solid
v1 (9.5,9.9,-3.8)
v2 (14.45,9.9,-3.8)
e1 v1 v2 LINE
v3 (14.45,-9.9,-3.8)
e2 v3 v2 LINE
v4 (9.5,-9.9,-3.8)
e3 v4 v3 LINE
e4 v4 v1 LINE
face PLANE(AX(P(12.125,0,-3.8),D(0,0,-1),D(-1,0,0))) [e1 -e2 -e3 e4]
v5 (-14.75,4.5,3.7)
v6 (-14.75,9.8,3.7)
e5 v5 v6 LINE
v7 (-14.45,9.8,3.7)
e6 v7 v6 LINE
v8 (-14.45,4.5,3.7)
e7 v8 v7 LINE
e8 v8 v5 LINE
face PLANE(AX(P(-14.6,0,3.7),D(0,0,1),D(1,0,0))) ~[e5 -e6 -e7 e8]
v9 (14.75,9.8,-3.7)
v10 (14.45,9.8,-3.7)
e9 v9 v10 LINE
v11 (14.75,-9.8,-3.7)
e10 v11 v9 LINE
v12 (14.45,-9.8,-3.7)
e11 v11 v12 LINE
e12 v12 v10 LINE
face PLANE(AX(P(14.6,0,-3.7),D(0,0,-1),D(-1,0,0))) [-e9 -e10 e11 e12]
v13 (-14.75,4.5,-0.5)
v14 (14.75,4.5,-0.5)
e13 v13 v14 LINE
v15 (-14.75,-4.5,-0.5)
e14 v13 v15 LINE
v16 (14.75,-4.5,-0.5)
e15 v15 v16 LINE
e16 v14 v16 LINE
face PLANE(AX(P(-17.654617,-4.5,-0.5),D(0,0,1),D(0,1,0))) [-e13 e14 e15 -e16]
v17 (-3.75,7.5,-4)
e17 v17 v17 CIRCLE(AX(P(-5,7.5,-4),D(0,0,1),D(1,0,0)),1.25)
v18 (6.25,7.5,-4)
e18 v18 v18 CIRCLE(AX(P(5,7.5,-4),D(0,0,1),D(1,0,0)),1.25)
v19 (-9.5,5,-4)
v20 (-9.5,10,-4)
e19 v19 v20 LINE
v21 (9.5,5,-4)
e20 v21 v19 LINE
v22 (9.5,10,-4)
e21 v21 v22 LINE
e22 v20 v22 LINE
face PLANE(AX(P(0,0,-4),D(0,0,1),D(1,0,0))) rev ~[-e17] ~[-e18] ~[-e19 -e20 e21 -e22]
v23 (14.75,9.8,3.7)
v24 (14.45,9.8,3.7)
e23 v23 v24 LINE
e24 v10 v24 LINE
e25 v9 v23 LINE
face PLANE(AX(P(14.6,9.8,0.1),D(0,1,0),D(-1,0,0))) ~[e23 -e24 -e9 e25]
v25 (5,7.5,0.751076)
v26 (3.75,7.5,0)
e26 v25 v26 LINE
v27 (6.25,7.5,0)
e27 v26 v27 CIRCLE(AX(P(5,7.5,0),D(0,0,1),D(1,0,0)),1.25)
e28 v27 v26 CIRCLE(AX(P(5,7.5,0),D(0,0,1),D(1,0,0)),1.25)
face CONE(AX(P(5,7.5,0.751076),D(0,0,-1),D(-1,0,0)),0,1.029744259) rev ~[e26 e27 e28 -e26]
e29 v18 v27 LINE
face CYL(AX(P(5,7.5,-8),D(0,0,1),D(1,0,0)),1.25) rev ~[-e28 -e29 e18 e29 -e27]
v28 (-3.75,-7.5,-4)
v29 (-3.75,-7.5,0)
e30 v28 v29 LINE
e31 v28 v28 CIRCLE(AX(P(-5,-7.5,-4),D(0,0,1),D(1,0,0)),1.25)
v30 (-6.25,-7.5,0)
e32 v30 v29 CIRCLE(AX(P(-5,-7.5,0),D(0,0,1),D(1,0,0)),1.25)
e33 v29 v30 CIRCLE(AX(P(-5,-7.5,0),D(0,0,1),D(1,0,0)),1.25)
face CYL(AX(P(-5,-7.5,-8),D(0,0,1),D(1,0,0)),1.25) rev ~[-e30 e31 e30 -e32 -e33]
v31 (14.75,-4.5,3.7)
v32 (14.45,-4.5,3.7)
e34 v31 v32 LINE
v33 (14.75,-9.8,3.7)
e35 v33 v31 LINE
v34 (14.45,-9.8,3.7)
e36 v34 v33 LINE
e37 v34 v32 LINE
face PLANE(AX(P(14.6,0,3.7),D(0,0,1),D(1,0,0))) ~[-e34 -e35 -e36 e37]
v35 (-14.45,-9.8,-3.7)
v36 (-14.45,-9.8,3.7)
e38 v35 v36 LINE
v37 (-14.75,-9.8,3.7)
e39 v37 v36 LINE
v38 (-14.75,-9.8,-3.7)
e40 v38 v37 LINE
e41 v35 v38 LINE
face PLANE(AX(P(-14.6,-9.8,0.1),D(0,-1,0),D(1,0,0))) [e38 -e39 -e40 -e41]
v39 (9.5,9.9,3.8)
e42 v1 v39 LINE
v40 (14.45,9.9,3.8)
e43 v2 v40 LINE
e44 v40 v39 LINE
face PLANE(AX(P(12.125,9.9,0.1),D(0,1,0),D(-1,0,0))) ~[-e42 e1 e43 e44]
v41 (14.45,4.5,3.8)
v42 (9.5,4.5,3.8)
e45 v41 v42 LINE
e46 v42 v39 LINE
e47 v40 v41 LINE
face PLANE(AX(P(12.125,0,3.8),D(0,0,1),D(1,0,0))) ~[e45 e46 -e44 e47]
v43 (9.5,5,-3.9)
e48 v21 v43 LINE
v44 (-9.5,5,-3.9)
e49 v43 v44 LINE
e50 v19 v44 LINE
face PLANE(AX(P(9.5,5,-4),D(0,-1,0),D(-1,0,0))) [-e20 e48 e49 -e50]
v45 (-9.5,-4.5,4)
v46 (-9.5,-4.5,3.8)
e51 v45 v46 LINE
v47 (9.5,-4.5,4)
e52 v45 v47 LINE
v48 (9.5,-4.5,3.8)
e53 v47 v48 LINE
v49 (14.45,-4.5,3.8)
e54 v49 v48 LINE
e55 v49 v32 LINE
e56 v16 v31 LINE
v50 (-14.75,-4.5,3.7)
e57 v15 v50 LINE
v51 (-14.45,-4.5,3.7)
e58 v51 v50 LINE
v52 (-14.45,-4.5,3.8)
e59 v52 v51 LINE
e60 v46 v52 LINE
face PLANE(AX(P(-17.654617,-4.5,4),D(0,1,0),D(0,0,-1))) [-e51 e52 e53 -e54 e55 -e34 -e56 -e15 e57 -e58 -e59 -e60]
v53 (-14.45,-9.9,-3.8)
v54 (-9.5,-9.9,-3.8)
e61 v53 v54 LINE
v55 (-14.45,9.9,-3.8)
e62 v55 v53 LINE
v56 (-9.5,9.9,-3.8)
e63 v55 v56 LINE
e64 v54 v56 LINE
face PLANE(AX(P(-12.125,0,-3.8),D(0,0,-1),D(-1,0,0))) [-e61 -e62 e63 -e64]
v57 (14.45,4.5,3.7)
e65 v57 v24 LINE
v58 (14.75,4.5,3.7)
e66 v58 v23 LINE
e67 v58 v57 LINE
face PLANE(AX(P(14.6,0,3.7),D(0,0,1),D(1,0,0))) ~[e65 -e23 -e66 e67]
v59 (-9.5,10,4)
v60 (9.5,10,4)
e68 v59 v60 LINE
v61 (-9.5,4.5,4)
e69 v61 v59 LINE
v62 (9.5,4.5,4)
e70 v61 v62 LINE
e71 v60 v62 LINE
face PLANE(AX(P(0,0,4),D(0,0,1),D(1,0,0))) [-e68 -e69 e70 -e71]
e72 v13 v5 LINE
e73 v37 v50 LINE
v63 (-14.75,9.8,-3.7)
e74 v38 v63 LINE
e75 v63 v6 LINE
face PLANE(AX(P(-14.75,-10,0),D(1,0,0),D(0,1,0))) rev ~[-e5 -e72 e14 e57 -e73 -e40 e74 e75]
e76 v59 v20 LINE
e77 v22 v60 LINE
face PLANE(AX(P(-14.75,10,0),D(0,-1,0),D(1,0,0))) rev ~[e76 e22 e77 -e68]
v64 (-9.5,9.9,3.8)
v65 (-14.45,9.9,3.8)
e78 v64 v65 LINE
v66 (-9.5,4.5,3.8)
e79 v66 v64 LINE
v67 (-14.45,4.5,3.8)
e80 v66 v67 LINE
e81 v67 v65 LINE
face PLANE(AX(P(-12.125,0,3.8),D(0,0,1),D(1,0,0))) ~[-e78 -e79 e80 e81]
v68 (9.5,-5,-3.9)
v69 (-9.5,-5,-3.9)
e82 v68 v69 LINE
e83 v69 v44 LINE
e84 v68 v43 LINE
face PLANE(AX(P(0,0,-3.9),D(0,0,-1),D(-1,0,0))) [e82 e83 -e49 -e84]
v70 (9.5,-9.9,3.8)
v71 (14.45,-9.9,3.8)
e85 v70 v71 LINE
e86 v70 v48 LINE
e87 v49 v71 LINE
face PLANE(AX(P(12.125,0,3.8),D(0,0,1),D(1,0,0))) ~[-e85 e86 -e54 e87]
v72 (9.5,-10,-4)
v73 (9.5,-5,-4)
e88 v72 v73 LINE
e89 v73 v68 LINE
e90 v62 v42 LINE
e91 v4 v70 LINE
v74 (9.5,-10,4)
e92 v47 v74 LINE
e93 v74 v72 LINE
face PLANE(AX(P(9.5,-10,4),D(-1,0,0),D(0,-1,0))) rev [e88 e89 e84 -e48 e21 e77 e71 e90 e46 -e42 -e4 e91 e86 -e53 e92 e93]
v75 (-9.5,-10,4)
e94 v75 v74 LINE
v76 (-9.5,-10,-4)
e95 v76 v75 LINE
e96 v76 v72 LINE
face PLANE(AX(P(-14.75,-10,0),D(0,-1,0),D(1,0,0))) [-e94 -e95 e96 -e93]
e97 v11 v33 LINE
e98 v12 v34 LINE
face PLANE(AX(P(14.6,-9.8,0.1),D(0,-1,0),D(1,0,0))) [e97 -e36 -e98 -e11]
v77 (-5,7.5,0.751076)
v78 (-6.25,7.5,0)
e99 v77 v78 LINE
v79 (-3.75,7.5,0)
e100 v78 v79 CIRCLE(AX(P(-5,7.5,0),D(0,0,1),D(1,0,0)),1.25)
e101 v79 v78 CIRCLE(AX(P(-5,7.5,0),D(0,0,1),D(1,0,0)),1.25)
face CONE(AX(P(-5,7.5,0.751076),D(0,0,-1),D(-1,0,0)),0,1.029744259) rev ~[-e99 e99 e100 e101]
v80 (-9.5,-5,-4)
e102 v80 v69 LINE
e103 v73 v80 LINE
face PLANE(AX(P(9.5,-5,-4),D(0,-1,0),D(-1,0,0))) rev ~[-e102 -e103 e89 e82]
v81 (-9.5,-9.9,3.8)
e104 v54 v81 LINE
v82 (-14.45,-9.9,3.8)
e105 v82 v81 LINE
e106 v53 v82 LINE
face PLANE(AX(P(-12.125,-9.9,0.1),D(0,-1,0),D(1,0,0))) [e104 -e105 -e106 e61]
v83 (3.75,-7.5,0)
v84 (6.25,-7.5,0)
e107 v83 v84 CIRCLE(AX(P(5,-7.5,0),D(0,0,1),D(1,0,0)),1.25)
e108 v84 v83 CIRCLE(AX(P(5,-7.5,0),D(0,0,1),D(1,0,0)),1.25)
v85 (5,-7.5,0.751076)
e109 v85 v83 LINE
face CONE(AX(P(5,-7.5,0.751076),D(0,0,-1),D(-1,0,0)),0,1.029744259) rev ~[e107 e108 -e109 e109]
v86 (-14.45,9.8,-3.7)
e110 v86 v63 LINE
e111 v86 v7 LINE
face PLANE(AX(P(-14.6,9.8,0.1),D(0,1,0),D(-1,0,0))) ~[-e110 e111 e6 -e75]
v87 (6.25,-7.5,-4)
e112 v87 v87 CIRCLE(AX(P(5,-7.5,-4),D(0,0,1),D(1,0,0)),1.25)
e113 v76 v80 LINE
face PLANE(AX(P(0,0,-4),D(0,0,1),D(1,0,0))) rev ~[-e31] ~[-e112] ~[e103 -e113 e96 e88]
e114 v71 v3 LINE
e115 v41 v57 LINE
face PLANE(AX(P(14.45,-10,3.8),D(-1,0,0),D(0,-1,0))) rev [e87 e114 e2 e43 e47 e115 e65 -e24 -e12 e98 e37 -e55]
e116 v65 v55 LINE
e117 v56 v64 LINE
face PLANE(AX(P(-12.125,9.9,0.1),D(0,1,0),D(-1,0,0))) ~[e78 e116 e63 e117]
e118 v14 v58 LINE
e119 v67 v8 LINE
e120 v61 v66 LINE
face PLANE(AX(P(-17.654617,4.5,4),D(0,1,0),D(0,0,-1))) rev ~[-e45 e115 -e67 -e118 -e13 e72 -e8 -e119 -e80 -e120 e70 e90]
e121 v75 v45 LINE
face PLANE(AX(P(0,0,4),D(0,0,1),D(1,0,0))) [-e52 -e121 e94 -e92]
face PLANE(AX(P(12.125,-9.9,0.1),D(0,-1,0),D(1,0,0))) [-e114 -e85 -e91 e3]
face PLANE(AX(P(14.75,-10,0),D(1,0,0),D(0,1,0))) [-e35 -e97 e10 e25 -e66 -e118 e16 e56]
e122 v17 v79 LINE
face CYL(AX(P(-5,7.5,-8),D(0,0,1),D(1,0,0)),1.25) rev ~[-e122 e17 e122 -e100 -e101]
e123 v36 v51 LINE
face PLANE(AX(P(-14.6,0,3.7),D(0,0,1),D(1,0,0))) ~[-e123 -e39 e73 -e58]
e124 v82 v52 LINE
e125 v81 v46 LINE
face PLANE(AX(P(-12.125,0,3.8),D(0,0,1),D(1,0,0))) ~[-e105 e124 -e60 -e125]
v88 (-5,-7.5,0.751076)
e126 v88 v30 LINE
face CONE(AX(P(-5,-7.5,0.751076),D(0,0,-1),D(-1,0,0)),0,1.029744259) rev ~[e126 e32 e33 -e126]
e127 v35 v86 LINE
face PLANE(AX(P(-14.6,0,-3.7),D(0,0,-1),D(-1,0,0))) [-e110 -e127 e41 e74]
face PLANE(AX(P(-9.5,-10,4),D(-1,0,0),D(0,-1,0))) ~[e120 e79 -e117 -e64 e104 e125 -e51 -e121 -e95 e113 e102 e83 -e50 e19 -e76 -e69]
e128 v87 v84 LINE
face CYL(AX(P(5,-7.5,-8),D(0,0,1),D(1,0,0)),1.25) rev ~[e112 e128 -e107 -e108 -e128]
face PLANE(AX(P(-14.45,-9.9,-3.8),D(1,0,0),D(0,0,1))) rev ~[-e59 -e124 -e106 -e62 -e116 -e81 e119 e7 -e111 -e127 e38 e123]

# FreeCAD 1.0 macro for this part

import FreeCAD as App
import Part
import Sketcher

V = App.Vector


def add_polygon(sketch, points):
    """Adds a closed chain of lines whose ends are joined by coincident constraints."""
    first, n = sketch.GeometryCount, len(points)
    for a, b in zip(points, points[1:] + points[:1]):
        sketch.addGeometry(Part.LineSegment(App.Vector(*a, 0), App.Vector(*b, 0)), False)
    for i in range(n):
        sketch.addConstraint(Sketcher.Constraint("Coincident", first + i, 2, first + (i + 1) % n, 1))

doc = App.newDocument("Part")
body = doc.addObject("PartDesign::Body", "Body")

# Sketch on XY plane
sketch1 = doc.addObject("Sketcher::SketchObject", "Sketch")
body.addObject(sketch1)
sketch1.AttachmentSupport = (doc.XY_Plane, [""])
sketch1.MapMode = "FlatFace"
add_polygon(sketch1, [(-14.75, 10), (-14.75, -10), (14.75, -10), (14.75, 10)])  # lines 0-3
sketch1.addConstraint([
    Sketcher.Constraint("Vertical", 0),
    Sketcher.Constraint("Horizontal", 1),
    Sketcher.Constraint("Vertical", 2),
    Sketcher.Constraint("Horizontal", 3),
    Sketcher.Constraint("Symmetric", 0, 2, 2, 2, -1, 1),
    Sketcher.Constraint("DistanceY", 0, 2, 0, 1, 20.0),
    Sketcher.Constraint("DistanceX", 1, 1, 1, 2, 29.5),
])
pad1 = doc.addObject("PartDesign::Pad", "Pad")
body.addObject(pad1)
pad1.Profile = sketch1
pad1.Length = 8
pad1.Midplane = True

# Sketch on YZ plane
sketch2 = doc.addObject("Sketcher::SketchObject", "Sketch001")
body.addObject(sketch2)
sketch2.AttachmentSupport = (doc.YZ_Plane, [""])
sketch2.MapMode = "FlatFace"
sketch2.AttachmentOffset = App.Placement(V(0, 0, 14.75), App.Rotation())
add_polygon(sketch2, [(4.5, 4), (-4.5, 4), (-4.5, -0.5), (4.5, -0.5)])  # lines 0-3
sketch2.addConstraint([
    Sketcher.Constraint("Horizontal", 0),
    Sketcher.Constraint("Vertical", 1),
    Sketcher.Constraint("Horizontal", 2),
    Sketcher.Constraint("Vertical", 3),
    Sketcher.Constraint("DistanceX", 0, 2, 0, 1, 9.0),
    Sketcher.Constraint("DistanceY", 1, 2, 1, 1, 4.5),
    Sketcher.Constraint("DistanceY", -1, 1, 0, 2, 4.0),
    Sketcher.Constraint("DistanceX", 0, 2, -1, 1, 4.5),
])
pocket1 = doc.addObject("PartDesign::Pocket", "Pocket")
body.addObject(pocket1)
pocket1.Profile = sketch2
pocket1.Type = "ThroughAll"
pocket1.Midplane = True

# Sketch on XY plane
sketch3 = doc.addObject("Sketcher::SketchObject", "Sketch002")
body.addObject(sketch3)
sketch3.AttachmentSupport = (doc.XY_Plane, [""])
sketch3.MapMode = "FlatFace"
sketch3.AttachmentOffset = App.Placement(V(0, 0, -4), App.Rotation())
add_polygon(sketch3, [(9.5, 5), (9.5, -5), (-9.5, -5), (-9.5, 5)])  # lines 0-3
sketch3.addConstraint([
    Sketcher.Constraint("Vertical", 0),
    Sketcher.Constraint("Horizontal", 1),
    Sketcher.Constraint("Vertical", 2),
    Sketcher.Constraint("Horizontal", 3),
    Sketcher.Constraint("Symmetric", 0, 2, 2, 2, -1, 1),
    Sketcher.Constraint("DistanceX", 1, 2, 1, 1, 19.0),
    Sketcher.Constraint("DistanceY", 0, 2, 0, 1, 10.0),
])
pocket2 = doc.addObject("PartDesign::Pocket", "Pocket001")
body.addObject(pocket2)
pocket2.Profile = sketch3
pocket2.Length = 0.1
pocket2.Reversed = True

# Sketch on XY plane
sketch4 = doc.addObject("Sketcher::SketchObject", "Sketch003")
body.addObject(sketch4)
sketch4.AttachmentSupport = (doc.XY_Plane, [""])
sketch4.MapMode = "FlatFace"
sketch4.AttachmentOffset = App.Placement(V(0, 0, -4), App.Rotation())
add_polygon(sketch4, [(14.75, 10), (14.75, -10), (9.5, -10), (9.5, 10)])  # lines 0-3
add_polygon(sketch4, [(-9.5, 10), (-9.5, -10), (-14.75, -10), (-14.75, 10)])  # lines 4-7
sketch4.addConstraint([
    Sketcher.Constraint("Vertical", 0),
    Sketcher.Constraint("Horizontal", 1),
    Sketcher.Constraint("Vertical", 2),
    Sketcher.Constraint("Horizontal", 3),
    Sketcher.Constraint("Vertical", 4),
    Sketcher.Constraint("Horizontal", 5),
    Sketcher.Constraint("Vertical", 6),
    Sketcher.Constraint("Horizontal", 7),
    Sketcher.Constraint("Symmetric", 2, 2, 4, 2, -1, 1),
    Sketcher.Constraint("Symmetric", 0, 2, 6, 2, -1, 1),
    Sketcher.Constraint("Horizontal", 1, 2, 4, 2),
    Sketcher.Constraint("DistanceY", 0, 2, 0, 1, 20.0),
    Sketcher.Constraint("DistanceX", 4, 2, 1, 2, 19.0),
    Sketcher.Constraint("DistanceX", 1, 2, 1, 1, 5.25),
])
pocket3 = doc.addObject("PartDesign::Pocket", "Pocket002")
body.addObject(pocket3)
pocket3.Profile = sketch4
pocket3.Length = 0.2
pocket3.Reversed = True

# Sketch on XY plane
sketch5 = doc.addObject("Sketcher::SketchObject", "Sketch004")
body.addObject(sketch5)
sketch5.AttachmentSupport = (doc.XY_Plane, [""])
sketch5.MapMode = "FlatFace"
sketch5.AttachmentOffset = App.Placement(V(0, 0, -3.8), App.Rotation())
add_polygon(sketch5, [(14.75, 10), (14.75, -10), (14.45, -10), (14.45, 10)])  # lines 0-3
add_polygon(sketch5, [(-14.45, 10), (-14.45, -10), (-14.75, -10), (-14.75, 10)])  # lines 4-7
sketch5.addConstraint([
    Sketcher.Constraint("Vertical", 0),
    Sketcher.Constraint("Horizontal", 1),
    Sketcher.Constraint("Vertical", 2),
    Sketcher.Constraint("Horizontal", 3),
    Sketcher.Constraint("Vertical", 4),
    Sketcher.Constraint("Horizontal", 5),
    Sketcher.Constraint("Vertical", 6),
    Sketcher.Constraint("Horizontal", 7),
    Sketcher.Constraint("Symmetric", 2, 2, 4, 2, -1, 1),
    Sketcher.Constraint("Symmetric", 0, 2, 6, 2, -1, 1),
    Sketcher.Constraint("Horizontal", 1, 2, 4, 2),
    Sketcher.Constraint("DistanceY", 0, 2, 0, 1, 20.0),
    Sketcher.Constraint("DistanceX", 1, 2, 1, 1, 0.3),
    Sketcher.Constraint("DistanceX", 4, 2, 1, 2, 28.9),
])
pocket4 = doc.addObject("PartDesign::Pocket", "Pocket003")
body.addObject(pocket4)
pocket4.Profile = sketch5
pocket4.Length = 0.1
pocket4.Reversed = True

# Sketch on XZ plane
sketch6 = doc.addObject("Sketcher::SketchObject", "Sketch005")
body.addObject(sketch6)
sketch6.AttachmentSupport = (doc.XZ_Plane, [""])
sketch6.MapMode = "FlatFace"
sketch6.AttachmentOffset = App.Placement(V(0, 0, 10), App.Rotation())
add_polygon(sketch6, [(9.5, 4), (9.5, -3.8), (14.75, -3.8), (14.75, 4)])  # lines 0-3
add_polygon(sketch6, [(-14.75, 4), (-14.75, -3.8), (-9.5, -3.8), (-9.5, 4)])  # lines 4-7
sketch6.addConstraint([
    Sketcher.Constraint("Vertical", 0),
    Sketcher.Constraint("Horizontal", 1),
    Sketcher.Constraint("Vertical", 2),
    Sketcher.Constraint("Horizontal", 3),
    Sketcher.Constraint("Vertical", 4),
    Sketcher.Constraint("Horizontal", 5),
    Sketcher.Constraint("Vertical", 6),
    Sketcher.Constraint("Horizontal", 7),
    Sketcher.Constraint("Symmetric", 1, 2, 4, 2, -2),
    Sketcher.Constraint("Symmetric", 3, 2, 6, 2, -2),
    Sketcher.Constraint("DistanceY", 0, 2, 0, 1, 7.8),
    Sketcher.Constraint("DistanceY", -1, 1, 2, 2, 4.0),
    Sketcher.Constraint("DistanceX", 5, 2, 0, 2, 19.0),
    Sketcher.Constraint("DistanceX", 1, 1, 1, 2, 5.25),
])
pocket5 = doc.addObject("PartDesign::Pocket", "Pocket004")
body.addObject(pocket5)
pocket5.Profile = sketch6
pocket5.Length = 0.1

# Sketch on XZ plane
sketch7 = doc.addObject("Sketcher::SketchObject", "Sketch006")
body.addObject(sketch7)
sketch7.AttachmentSupport = (doc.XZ_Plane, [""])
sketch7.MapMode = "FlatFace"
sketch7.AttachmentOffset = App.Placement(V(0, 0, 9.9), App.Rotation())
add_polygon(sketch7, [(-14.75, 4), (-14.75, -3.8), (-14.45, -3.8), (-14.45, 4)])  # lines 0-3
add_polygon(sketch7, [(14.45, 4), (14.45, -3.8), (14.75, -3.8), (14.75, 4)])  # lines 4-7
sketch7.addConstraint([
    Sketcher.Constraint("Vertical", 0),
    Sketcher.Constraint("Horizontal", 1),
    Sketcher.Constraint("Vertical", 2),
    Sketcher.Constraint("Horizontal", 3),
    Sketcher.Constraint("Vertical", 4),
    Sketcher.Constraint("Horizontal", 5),
    Sketcher.Constraint("Vertical", 6),
    Sketcher.Constraint("Horizontal", 7),
    Sketcher.Constraint("Symmetric", 1, 2, 4, 2, -2),
    Sketcher.Constraint("Symmetric", 3, 2, 6, 2, -2),
    Sketcher.Constraint("DistanceX", 1, 1, 1, 2, 0.3),
    Sketcher.Constraint("DistanceY", 0, 2, 0, 1, 7.8),
    Sketcher.Constraint("DistanceY", -1, 1, 2, 2, 4.0),
    Sketcher.Constraint("DistanceX", 1, 2, 4, 2, 28.9),
])
pocket6 = doc.addObject("PartDesign::Pocket", "Pocket005")
body.addObject(pocket6)
pocket6.Profile = sketch7
pocket6.Length = 0.1
doc.recompute()

mirrored = doc.addObject("PartDesign::Mirrored", "Mirrored")
body.addObject(mirrored)
mirrored.Originals = [pocket3, pocket4]
mirrored.MirrorPlane = (doc.XY_Plane, [""])
body.Tip = mirrored
doc.recompute()

mirrored2 = doc.addObject("PartDesign::Mirrored", "Mirrored001")
body.addObject(mirrored2)
mirrored2.Originals = [pocket3, pocket4]
mirrored2.MirrorPlane = (doc.XZ_Plane, [""])
body.Tip = mirrored2
doc.recompute()

mirrored3 = doc.addObject("PartDesign::Mirrored", "Mirrored002")
body.addObject(mirrored3)
mirrored3.Originals = [pocket5, pocket6]
mirrored3.MirrorPlane = (doc.XZ_Plane, [""])
body.Tip = mirrored3

# Sketch on XY plane
sketch8 = doc.addObject("Sketcher::SketchObject", "Sketch007")
body.addObject(sketch8)
sketch8.AttachmentSupport = (doc.XY_Plane, [""])
sketch8.MapMode = "FlatFace"
sketch8.AttachmentOffset = App.Placement(V(0, 0, -4), App.Rotation())
sketch8.addGeometry([
    Part.Circle(V(5, 7.5, 0), V(0, 0, 1), 1.25),
    Part.Circle(V(-5, 7.5, 0), V(0, 0, 1), 1.25),
    Part.Circle(V(5, -7.5, 0), V(0, 0, 1), 1.25),
    Part.Circle(V(-5, -7.5, 0), V(0, 0, 1), 1.25),
], False)
sketch8.addConstraint([
    Sketcher.Constraint("Equal", 0, 1),
    Sketcher.Constraint("Equal", 1, 2),
    Sketcher.Constraint("Equal", 2, 3),
    Sketcher.Constraint("Symmetric", 1, 3, 2, 3, -1, 1),
    Sketcher.Constraint("Symmetric", 0, 3, 3, 3, -1, 1),
    Sketcher.Constraint("Symmetric", 0, 3, 1, 3, -2),
    Sketcher.Constraint("Diameter", 0, 2.5),
    Sketcher.Constraint("DistanceX", -1, 1, 0, 3, 5.0),
    Sketcher.Constraint("DistanceY", 2, 3, 0, 3, 15.0),
])
doc.recompute()
hole = doc.addObject("PartDesign::Hole", "Hole")
body.addObject(hole)
hole.Profile = sketch8
hole.ThreadType = "None"
hole.Diameter = 2.5
hole.DepthType = "Dimension"
hole.Depth = 4
hole.DrillPoint = "Angled"
hole.DrillPointAngle = 118
hole.Reversed = True

doc.recompute()
